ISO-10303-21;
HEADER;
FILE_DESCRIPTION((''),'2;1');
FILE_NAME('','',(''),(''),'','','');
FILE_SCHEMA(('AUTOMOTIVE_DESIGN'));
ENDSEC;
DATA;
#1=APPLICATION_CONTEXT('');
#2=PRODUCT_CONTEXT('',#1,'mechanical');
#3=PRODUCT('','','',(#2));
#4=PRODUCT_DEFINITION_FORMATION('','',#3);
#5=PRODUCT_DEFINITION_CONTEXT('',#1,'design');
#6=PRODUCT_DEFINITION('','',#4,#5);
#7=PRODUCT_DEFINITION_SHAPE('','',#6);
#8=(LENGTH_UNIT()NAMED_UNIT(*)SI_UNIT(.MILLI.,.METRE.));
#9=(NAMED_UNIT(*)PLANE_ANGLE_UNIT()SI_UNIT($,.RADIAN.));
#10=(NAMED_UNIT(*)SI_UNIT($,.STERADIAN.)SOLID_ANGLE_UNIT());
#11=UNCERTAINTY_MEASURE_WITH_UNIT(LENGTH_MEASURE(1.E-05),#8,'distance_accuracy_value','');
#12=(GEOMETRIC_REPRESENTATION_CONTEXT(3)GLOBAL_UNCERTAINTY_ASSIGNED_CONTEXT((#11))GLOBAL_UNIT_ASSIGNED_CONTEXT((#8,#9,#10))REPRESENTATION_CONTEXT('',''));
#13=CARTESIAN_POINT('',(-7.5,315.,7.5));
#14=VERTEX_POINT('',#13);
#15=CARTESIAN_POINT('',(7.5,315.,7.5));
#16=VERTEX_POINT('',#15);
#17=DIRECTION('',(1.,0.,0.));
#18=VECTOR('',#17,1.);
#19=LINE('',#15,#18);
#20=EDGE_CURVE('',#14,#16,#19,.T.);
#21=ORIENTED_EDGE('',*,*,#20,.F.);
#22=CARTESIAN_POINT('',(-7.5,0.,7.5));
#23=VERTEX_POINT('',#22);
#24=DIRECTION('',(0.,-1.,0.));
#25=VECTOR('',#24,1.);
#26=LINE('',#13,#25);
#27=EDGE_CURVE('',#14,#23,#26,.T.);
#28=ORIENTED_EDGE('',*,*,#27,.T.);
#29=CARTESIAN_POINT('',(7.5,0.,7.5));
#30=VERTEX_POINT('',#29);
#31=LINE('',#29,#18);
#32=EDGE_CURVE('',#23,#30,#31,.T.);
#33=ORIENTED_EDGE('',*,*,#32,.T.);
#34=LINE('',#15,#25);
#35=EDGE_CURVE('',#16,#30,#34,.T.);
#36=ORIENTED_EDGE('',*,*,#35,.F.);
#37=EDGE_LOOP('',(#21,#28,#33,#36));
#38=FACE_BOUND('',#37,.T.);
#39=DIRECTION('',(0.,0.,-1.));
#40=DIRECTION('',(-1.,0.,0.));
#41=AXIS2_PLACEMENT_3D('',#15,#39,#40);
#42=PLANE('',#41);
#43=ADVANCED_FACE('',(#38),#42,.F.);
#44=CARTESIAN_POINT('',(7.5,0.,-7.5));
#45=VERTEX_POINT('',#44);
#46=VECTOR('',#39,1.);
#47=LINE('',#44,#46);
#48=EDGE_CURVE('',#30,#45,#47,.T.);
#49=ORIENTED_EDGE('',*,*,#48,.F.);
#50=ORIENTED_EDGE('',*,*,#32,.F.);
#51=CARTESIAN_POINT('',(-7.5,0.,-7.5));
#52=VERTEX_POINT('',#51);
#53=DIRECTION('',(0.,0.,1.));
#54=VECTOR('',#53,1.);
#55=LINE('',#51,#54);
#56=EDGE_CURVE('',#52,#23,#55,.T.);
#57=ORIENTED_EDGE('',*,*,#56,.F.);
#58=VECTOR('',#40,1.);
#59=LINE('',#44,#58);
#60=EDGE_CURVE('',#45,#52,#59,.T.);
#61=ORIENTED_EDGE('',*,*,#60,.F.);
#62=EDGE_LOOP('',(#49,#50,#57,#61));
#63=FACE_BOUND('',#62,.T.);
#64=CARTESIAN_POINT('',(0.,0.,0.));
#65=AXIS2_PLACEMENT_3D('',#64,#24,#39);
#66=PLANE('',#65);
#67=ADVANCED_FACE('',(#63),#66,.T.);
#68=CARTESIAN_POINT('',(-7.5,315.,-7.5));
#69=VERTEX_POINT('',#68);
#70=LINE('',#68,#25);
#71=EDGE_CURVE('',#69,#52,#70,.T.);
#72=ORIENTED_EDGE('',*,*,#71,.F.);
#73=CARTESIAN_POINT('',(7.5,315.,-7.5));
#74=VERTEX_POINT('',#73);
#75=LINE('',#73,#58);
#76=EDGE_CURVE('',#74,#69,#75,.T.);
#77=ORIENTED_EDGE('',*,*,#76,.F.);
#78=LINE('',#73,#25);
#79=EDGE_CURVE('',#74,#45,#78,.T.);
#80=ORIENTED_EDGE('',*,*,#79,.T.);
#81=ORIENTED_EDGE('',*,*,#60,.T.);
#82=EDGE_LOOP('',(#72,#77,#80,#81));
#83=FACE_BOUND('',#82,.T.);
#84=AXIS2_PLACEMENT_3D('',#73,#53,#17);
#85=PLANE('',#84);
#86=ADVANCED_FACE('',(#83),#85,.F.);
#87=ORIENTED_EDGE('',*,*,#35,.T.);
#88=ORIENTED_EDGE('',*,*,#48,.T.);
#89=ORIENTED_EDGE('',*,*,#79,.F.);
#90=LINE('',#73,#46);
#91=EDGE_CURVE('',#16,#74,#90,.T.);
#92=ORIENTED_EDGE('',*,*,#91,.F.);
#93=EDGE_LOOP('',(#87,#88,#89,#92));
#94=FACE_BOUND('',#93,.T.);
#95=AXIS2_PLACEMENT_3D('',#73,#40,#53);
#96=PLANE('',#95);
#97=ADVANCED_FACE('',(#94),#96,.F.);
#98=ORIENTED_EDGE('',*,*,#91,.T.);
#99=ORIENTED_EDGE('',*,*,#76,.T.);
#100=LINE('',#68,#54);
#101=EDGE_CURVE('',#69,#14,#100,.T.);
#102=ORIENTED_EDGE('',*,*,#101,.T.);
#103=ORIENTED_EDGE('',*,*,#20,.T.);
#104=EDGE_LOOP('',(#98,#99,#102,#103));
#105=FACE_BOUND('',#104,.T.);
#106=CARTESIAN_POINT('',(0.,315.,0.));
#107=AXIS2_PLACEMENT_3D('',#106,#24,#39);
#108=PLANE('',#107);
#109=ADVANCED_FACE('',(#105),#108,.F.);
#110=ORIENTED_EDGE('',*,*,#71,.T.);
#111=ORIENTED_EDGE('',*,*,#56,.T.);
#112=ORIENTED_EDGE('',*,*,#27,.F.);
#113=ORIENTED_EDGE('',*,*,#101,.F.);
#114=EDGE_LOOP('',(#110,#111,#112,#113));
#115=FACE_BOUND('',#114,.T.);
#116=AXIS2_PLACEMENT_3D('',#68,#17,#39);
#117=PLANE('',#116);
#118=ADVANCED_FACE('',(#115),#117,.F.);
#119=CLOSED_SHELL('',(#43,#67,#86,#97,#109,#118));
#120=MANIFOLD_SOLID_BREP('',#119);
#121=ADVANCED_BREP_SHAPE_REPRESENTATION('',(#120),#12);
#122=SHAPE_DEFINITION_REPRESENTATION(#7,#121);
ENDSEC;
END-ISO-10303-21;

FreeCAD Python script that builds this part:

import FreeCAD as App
import Part
import Sketcher
from FreeCAD import Vector


def add_polygon(sketch, points):
    """Adds a closed chain of lines whose ends are joined by coincident constraints."""
    first, n = sketch.GeometryCount, len(points)
    for a, b in zip(points, points[1:] + points[:1]):
        sketch.addGeometry(Part.LineSegment(App.Vector(*a, 0), App.Vector(*b, 0)), False)
    for i in range(n):
        sketch.addConstraint(Sketcher.Constraint("Coincident", first + i, 2, first + (i + 1) % n, 1))

doc = App.newDocument("Part")
body = doc.addObject("PartDesign::Body", "Body")

sketch1 = body.newObject("Sketcher::SketchObject", "Sketch")
sketch1.AttachmentSupport = (doc.getObject("XZ_Plane"), [""])
sketch1.MapMode = "FlatFace"
add_polygon(sketch1, [(-8, -8), (-8, 8), (8, 8), (8, -8)])
sketch1.addConstraint([
    Sketcher.Constraint("Vertical", 0),
    Sketcher.Constraint("Horizontal", 1),
    Sketcher.Constraint("Vertical", 2),
    Sketcher.Constraint("Horizontal", 3),
    Sketcher.Constraint("Symmetric", 0, 2, 2, 2, -1, 1),
    Sketcher.Constraint("Equal", 3, 0),
    Sketcher.Constraint("DistanceX", 1, 1, 1, 2, 15.0),
])
pad1 = body.newObject("PartDesign::Pad", "Pad")
pad1.Profile = sketch1
pad1.Length = 315
pad1.Reversed = True

doc.recompute()
